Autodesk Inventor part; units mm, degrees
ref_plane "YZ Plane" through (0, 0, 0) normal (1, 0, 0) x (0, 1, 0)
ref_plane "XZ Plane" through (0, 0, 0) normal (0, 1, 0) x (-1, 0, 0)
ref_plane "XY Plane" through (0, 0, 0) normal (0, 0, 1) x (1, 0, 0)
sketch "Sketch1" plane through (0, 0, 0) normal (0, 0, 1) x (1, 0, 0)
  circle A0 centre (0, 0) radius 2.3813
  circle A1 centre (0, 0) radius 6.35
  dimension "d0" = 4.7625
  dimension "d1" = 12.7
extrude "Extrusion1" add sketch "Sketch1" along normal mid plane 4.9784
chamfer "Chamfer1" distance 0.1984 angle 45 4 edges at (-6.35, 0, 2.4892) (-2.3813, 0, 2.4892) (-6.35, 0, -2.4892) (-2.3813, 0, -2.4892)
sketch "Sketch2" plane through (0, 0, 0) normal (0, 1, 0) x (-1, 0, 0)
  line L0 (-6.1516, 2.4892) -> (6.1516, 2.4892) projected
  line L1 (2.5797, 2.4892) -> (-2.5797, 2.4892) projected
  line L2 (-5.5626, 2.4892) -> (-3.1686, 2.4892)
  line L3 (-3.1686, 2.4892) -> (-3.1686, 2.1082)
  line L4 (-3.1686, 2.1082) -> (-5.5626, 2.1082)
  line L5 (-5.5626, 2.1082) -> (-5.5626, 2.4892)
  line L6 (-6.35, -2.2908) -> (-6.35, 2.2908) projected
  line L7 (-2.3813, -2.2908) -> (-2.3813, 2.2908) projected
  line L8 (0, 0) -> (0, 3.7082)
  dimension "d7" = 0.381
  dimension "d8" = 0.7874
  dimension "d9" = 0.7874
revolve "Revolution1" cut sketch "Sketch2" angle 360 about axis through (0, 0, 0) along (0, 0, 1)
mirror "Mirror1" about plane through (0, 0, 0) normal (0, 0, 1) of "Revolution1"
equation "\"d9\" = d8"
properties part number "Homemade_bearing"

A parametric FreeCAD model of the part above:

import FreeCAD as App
import Part
import Sketcher
from FreeCAD import Vector
Q = App.Units.Quantity


def edges_at(feature, points):
    """Names of the edges that pass closest to the given points."""
    edges = feature.Shape.Edges
    near = lambda p: min(range(len(edges)), key=lambda i: edges[i].distToShape(Part.Vertex(*p))[0])
    return sorted({f"Edge{near(p) + 1}" for p in points})

doc = App.newDocument("Part")
body = doc.addObject("PartDesign::Body", "Body")

# Sketch on XY plane
sketch1 = body.newObject("Sketcher::SketchObject", "Sketch")
sketch1.AttachmentSupport = (doc.getObject("XY_Plane"), [""])
sketch1.MapMode = "FlatFace"
sketch1.addGeometry(Part.Circle(Vector(0, 0, 0), Vector(0, 0, 1), 6.3), False)
sketch1.addGeometry(Part.Circle(Vector(0, 0, 0), Vector(0, 0, 1), 2.4), False)
sketch1.addConstraint(Sketcher.Constraint("Coincident", 0, 3, -1, 1))
sketch1.addConstraint(Sketcher.Constraint("Coincident", 1, 3, -1, 1))
sketch1.addConstraint(Sketcher.Constraint("Diameter", 0, Q("0.5 in")))
sketch1.addConstraint(Sketcher.Constraint("Diameter", 1, Q("0.1875 in")))
pad1 = body.newObject("PartDesign::Pad", "Pad")
pad1.Profile = sketch1
pad1.Length = Q("0.196 in")
pad1.Midplane = True
doc.recompute()

chamfer = body.newObject("PartDesign::Chamfer", "Chamfer")
chamfer.Base = (pad1, edges_at(pad1, [
    (-6.35, 0, 2.489),
    (-2.381, 0, 2.489),
    (-6.35, 0, -2.489),
    (-2.381, 0, -2.489),
]))
chamfer.Size = Q("0.007811 in")

# Sketch on XZ plane
sketch2 = body.newObject("Sketcher::SketchObject", "Sketch001")
sketch2.AttachmentSupport = (doc.getObject("XZ_Plane"), [""])
sketch2.MapMode = "FlatFace"
sketch2.addGeometry(Part.LineSegment(Vector(3.17, 2.49, 0), Vector(5.56, 2.49, 0)), False)
sketch2.addGeometry(Part.LineSegment(Vector(5.56, 2.49, 0), Vector(5.56, 2.11, 0)), False)
sketch2.addGeometry(Part.LineSegment(Vector(5.56, 2.11, 0), Vector(3.17, 2.11, 0)), False)
sketch2.addGeometry(Part.LineSegment(Vector(3.17, 2.11, 0), Vector(3.17, 2.49, 0)), False)
sketch2.addConstraint(Sketcher.Constraint("Coincident", 0, 2, 1, 1))
sketch2.addConstraint(Sketcher.Constraint("Coincident", 1, 2, 2, 1))
sketch2.addConstraint(Sketcher.Constraint("Coincident", 2, 2, 3, 1))
sketch2.addConstraint(Sketcher.Constraint("Coincident", 3, 2, 0, 1))
sketch2.addConstraint(Sketcher.Constraint("Horizontal", 0))
sketch2.addConstraint(Sketcher.Constraint("Vertical", 1))
sketch2.addConstraint(Sketcher.Constraint("Horizontal", 2))
sketch2.addConstraint(Sketcher.Constraint("Vertical", 3))
sketch2.addConstraint(Sketcher.Constraint("DistanceY", 1, 2, 1, 1, Q("0.015 in")))
sketch2.addConstraint(Sketcher.Constraint("DistanceX", -1, 1, 0, 2, Q("0.219 in")))
sketch2.addConstraint(Sketcher.Constraint("DistanceY", -1, 1, 0, 2, Q("0.098 in")))
sketch2.addConstraint(Sketcher.Constraint("DistanceX", 0, 1, 0, 2, 2.394))
groove = body.newObject("PartDesign::Groove", "Groove")
groove.Profile = sketch2
groove.ReferenceAxis = (sketch2, ["V_Axis"])
groove.Angle = 360
doc.recompute()

mirrored = body.newObject("PartDesign::Mirrored", "Mirrored")
mirrored.Originals = [groove]
mirrored.MirrorPlane = (doc.getObject("XY_Plane"), [""])
body.Tip = mirrored

doc.recompute()
